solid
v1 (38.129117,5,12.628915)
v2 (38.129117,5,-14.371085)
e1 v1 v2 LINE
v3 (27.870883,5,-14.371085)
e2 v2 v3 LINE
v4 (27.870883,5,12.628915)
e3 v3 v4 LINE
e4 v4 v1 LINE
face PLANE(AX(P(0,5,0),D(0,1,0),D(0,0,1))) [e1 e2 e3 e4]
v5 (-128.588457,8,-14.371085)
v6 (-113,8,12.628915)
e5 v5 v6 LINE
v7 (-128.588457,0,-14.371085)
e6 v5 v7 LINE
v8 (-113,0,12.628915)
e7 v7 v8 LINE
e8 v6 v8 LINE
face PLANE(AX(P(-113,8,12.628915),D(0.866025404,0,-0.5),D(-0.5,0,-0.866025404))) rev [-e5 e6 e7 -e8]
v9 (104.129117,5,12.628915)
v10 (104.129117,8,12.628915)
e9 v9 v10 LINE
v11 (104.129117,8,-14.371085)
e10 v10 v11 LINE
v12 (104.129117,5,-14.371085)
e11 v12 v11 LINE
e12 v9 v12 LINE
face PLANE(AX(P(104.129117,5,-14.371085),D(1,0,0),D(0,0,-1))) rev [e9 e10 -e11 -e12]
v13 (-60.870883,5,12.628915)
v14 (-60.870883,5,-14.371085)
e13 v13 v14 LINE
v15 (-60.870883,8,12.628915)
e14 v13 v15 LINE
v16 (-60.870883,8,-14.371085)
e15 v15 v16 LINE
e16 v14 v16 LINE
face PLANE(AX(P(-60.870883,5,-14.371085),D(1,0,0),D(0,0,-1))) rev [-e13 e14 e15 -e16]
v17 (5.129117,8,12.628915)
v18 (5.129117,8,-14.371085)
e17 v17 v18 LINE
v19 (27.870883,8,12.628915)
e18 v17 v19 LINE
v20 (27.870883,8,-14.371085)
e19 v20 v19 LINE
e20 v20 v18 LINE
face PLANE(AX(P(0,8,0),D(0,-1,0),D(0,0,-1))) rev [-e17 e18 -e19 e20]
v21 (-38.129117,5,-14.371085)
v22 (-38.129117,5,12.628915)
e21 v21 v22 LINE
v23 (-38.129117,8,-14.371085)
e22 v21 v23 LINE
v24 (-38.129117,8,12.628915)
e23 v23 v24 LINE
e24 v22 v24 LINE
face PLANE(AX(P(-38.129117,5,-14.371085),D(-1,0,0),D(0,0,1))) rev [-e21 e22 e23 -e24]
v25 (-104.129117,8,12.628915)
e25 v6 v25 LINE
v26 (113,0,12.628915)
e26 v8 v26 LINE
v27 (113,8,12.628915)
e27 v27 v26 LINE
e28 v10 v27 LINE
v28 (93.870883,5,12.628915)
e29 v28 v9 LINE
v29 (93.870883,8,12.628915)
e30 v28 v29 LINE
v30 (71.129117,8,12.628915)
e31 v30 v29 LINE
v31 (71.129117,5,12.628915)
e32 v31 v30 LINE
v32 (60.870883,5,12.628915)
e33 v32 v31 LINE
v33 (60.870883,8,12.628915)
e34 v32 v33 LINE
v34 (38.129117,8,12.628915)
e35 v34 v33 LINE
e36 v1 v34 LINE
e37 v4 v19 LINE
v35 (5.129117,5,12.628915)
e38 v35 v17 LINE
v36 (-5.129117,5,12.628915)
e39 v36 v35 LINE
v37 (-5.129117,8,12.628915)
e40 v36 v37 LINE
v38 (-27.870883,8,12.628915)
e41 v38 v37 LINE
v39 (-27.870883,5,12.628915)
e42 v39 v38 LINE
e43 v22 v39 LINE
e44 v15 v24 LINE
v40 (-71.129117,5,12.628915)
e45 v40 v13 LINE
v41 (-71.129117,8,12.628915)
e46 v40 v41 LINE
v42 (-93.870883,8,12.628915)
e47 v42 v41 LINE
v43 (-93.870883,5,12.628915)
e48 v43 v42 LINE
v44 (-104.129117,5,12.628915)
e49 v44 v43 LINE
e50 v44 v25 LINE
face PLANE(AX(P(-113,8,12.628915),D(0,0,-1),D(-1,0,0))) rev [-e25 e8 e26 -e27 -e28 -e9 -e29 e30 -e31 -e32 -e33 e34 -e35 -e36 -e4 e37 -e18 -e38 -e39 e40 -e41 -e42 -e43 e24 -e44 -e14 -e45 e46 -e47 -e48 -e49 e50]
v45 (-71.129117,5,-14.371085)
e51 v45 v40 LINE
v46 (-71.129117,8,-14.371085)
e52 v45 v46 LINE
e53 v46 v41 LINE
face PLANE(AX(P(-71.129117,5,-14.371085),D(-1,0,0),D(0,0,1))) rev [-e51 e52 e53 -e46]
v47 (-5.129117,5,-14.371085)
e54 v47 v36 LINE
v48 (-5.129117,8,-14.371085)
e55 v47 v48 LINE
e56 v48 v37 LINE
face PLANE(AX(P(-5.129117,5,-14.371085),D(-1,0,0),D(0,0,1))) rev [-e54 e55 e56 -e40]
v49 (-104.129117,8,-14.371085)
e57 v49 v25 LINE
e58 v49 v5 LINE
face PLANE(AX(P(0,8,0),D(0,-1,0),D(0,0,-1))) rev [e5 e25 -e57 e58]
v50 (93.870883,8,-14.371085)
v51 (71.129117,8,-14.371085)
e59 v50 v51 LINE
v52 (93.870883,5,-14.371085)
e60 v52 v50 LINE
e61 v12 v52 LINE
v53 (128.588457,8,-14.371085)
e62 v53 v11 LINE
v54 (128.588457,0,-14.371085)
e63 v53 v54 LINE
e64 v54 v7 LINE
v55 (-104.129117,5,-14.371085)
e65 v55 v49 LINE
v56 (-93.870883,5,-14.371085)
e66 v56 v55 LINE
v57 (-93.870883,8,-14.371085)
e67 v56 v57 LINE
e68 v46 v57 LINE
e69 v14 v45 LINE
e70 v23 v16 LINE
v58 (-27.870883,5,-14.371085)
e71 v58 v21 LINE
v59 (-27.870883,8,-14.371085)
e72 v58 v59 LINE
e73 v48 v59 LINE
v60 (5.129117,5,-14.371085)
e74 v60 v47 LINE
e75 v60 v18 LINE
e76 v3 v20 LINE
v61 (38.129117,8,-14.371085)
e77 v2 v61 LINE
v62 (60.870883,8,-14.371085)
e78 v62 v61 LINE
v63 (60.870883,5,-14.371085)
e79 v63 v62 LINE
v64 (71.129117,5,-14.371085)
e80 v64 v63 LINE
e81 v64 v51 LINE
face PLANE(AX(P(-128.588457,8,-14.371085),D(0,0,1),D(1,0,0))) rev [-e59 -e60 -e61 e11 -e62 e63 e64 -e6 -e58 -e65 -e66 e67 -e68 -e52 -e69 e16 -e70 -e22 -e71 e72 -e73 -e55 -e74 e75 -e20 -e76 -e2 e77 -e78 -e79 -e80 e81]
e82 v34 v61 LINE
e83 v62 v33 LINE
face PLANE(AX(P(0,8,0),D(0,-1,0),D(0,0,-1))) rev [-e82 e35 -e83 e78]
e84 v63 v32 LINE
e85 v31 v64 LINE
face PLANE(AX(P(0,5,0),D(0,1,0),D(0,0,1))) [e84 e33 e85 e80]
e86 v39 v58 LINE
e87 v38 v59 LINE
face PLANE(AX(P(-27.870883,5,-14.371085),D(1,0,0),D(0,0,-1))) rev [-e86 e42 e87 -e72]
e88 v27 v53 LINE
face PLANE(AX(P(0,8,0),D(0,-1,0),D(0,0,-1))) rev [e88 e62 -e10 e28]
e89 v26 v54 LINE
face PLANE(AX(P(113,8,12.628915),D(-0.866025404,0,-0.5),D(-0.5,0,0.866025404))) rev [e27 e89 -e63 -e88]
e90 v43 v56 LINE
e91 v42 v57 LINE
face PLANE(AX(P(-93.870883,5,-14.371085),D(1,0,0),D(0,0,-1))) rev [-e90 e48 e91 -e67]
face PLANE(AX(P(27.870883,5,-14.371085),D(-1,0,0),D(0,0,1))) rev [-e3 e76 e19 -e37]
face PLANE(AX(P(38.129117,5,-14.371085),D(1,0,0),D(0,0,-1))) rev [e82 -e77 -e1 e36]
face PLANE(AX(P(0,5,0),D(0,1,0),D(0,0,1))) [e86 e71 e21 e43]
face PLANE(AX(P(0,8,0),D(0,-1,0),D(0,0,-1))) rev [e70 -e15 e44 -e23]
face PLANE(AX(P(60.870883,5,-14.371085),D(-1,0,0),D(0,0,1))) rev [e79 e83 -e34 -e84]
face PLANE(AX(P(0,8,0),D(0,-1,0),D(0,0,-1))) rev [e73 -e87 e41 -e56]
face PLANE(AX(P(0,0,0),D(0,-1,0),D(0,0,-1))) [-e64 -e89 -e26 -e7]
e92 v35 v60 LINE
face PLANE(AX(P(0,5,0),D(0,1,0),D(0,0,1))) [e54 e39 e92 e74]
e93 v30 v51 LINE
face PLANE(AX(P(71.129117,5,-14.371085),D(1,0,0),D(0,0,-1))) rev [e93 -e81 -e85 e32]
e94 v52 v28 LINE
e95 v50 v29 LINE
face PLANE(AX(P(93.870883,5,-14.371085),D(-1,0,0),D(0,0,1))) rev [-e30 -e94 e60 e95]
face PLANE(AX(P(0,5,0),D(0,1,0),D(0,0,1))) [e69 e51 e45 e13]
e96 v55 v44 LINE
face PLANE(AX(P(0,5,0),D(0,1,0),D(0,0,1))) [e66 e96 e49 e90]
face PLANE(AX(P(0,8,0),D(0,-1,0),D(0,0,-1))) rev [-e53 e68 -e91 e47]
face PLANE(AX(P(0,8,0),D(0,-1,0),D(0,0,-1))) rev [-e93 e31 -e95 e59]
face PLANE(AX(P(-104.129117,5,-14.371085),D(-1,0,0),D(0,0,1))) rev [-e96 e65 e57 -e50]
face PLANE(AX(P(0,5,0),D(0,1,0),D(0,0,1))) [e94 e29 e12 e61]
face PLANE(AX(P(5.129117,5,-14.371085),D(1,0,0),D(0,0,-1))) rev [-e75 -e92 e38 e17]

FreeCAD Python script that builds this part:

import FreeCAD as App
import Part
import Sketcher
from FreeCAD import Vector
Q = App.Units.Quantity


def add_polygon(sketch, points):
    """Adds a closed chain of lines whose ends are joined by coincident constraints."""
    first, n = sketch.GeometryCount, len(points)
    for a, b in zip(points, points[1:] + points[:1]):
        sketch.addGeometry(Part.LineSegment(App.Vector(*a, 0), App.Vector(*b, 0)), False)
    for i in range(n):
        sketch.addConstraint(Sketcher.Constraint("Coincident", first + i, 2, first + (i + 1) % n, 1))

doc = App.newDocument("Part")
params = doc.addObject("Spreadsheet::Sheet", "Params")
for row, (alias, value) in enumerate([
    ("sketch1_width", "226 mm"),
    ("pad1_length", "8 mm"),
    ("sketch2_height", "27 mm"),
    ("pocket1_length", "3 mm"),
], start=1):
    params.set(f"A{row}", alias)
    params.set(f"B{row}", "=" + value)
    params.setAlias(f"B{row}", alias)

body = doc.addObject("PartDesign::Body", "Body")

# Sketch on XZ plane
sketch1 = body.newObject("Sketcher::SketchObject", "Sketch")
sketch1.AttachmentSupport = (doc.getObject("XZ_Plane"), [""])
sketch1.MapMode = "FlatFace"
add_polygon(sketch1, [(-113, 13), (113, 13), (129, -14), (-129, -14)])  # lines 0-3
sketch1.addConstraint(Sketcher.Constraint("Horizontal", 0))
sketch1.addConstraint(Sketcher.Constraint("Horizontal", 2))
sketch1.addConstraint(Sketcher.Constraint("Equal", 1, 3))
sketch1.addConstraint(Sketcher.Constraint("DistanceX", 0, 1, 0, 2, 226.0))
sketch1.addConstraint(Sketcher.Constraint("Angle", 1, Q("-60 deg")))
sketch1.addConstraint(Sketcher.Constraint("DistanceX", -1, 1, 0, 2, 113.0))
sketch1.addConstraint(Sketcher.Constraint("DistanceY", 1, 2, 0, 2, 27.0))
sketch1.addConstraint(Sketcher.Constraint("DistanceY", -1, 1, 0, 2, 12.628915))
sketch1.setExpression("Constraints[7]", "Params.sketch1_width")
pad1 = body.newObject("PartDesign::Pad", "Pad")
pad1.Profile = sketch1
pad1.setExpression("Length", "Params.pad1_length")
pad1.Reversed = True

# Sketch on XZ plane
sketch2 = body.newObject("Sketcher::SketchObject", "Sketch001")
sketch2.AttachmentSupport = (doc.getObject("XZ_Plane"), [""])
sketch2.MapMode = "FlatFace"
sketch2.AttachmentOffset = App.Placement(Vector(0, 0, -8), App.Rotation())
add_polygon(sketch2, [(-71, -14), (-71, 13), (-61, 13), (-61, -14)])  # lines 0-3
add_polygon(sketch2, [(-104, -14), (-104, 13), (-94, 13), (-94, -14)])  # lines 4-7
add_polygon(sketch2, [(-38, -14), (-38, 13), (-28, 13), (-28, -14)])  # lines 8-11
add_polygon(sketch2, [(-5, -14), (-5, 13), (5, 13), (5, -14)])  # lines 12-15
add_polygon(sketch2, [(28, -14), (28, 13), (38, 13), (38, -14)])  # lines 16-19
add_polygon(sketch2, [(61, -14), (61, 13), (71, 13), (71, -14)])  # lines 20-23
add_polygon(sketch2, [(94, -14), (94, 13), (104, 13), (104, -14)])  # lines 24-27
sketch2.addConstraint(Sketcher.Constraint("Vertical", 0))
sketch2.addConstraint(Sketcher.Constraint("Horizontal", 1))
sketch2.addConstraint(Sketcher.Constraint("Vertical", 2))
sketch2.addConstraint(Sketcher.Constraint("Horizontal", 3))
sketch2.addConstraint(Sketcher.Constraint("Vertical", 4))
sketch2.addConstraint(Sketcher.Constraint("Horizontal", 5))
sketch2.addConstraint(Sketcher.Constraint("Vertical", 6))
sketch2.addConstraint(Sketcher.Constraint("Horizontal", 7))
sketch2.addConstraint(Sketcher.Constraint("Vertical", 8))
sketch2.addConstraint(Sketcher.Constraint("Horizontal", 9))
sketch2.addConstraint(Sketcher.Constraint("Vertical", 10))
sketch2.addConstraint(Sketcher.Constraint("Horizontal", 11))
sketch2.addConstraint(Sketcher.Constraint("Vertical", 12))
sketch2.addConstraint(Sketcher.Constraint("Horizontal", 13))
sketch2.addConstraint(Sketcher.Constraint("Vertical", 14))
sketch2.addConstraint(Sketcher.Constraint("Horizontal", 15))
sketch2.addConstraint(Sketcher.Constraint("Vertical", 16))
sketch2.addConstraint(Sketcher.Constraint("Horizontal", 17))
sketch2.addConstraint(Sketcher.Constraint("Vertical", 18))
sketch2.addConstraint(Sketcher.Constraint("Horizontal", 19))
sketch2.addConstraint(Sketcher.Constraint("Vertical", 20))
sketch2.addConstraint(Sketcher.Constraint("Horizontal", 21))
sketch2.addConstraint(Sketcher.Constraint("Vertical", 22))
sketch2.addConstraint(Sketcher.Constraint("Horizontal", 23))
sketch2.addConstraint(Sketcher.Constraint("Vertical", 24))
sketch2.addConstraint(Sketcher.Constraint("Horizontal", 25))
sketch2.addConstraint(Sketcher.Constraint("Vertical", 26))
sketch2.addConstraint(Sketcher.Constraint("Horizontal", 27))
sketch2.addConstraint(Sketcher.Constraint("Symmetric", 9, 2, 16, 2, -2))
sketch2.addConstraint(Sketcher.Constraint("Symmetric", 11, 2, 18, 2, -2))
sketch2.addConstraint(Sketcher.Constraint("Symmetric", 1, 2, 20, 2, -2))
sketch2.addConstraint(Sketcher.Constraint("Symmetric", 3, 2, 22, 2, -2))
sketch2.addConstraint(Sketcher.Constraint("Symmetric", 5, 2, 24, 2, -2))
sketch2.addConstraint(Sketcher.Constraint("Symmetric", 7, 2, 26, 2, -2))
sketch2.addConstraint(Sketcher.Constraint("Horizontal", 1, 2, 4, 2))
sketch2.addConstraint(Sketcher.Constraint("Horizontal", 3, 2, 6, 2))
sketch2.addConstraint(Sketcher.Constraint("Horizontal", 5, 2, 8, 2))
sketch2.addConstraint(Sketcher.Constraint("Horizontal", 7, 2, 10, 2))
sketch2.addConstraint(Sketcher.Constraint("Horizontal", 9, 2, 12, 2))
sketch2.addConstraint(Sketcher.Constraint("Horizontal", 11, 2, 14, 2))
sketch2.addConstraint(Sketcher.Constraint("Equal", 3, 5))
sketch2.addConstraint(Sketcher.Constraint("Equal", 7, 9))
sketch2.addConstraint(Sketcher.Constraint("Equal", 11, 13))
sketch2.addConstraint(Sketcher.Constraint("DistanceY", 0, 1, 0, 2, 27.0))
sketch2.addConstraint(Sketcher.Constraint("DistanceX", 4, 2, 0, 2, 33.0))
sketch2.addConstraint(Sketcher.Constraint("DistanceX", 0, 2, 8, 2, 33.0))
sketch2.addConstraint(Sketcher.Constraint("DistanceX", 8, 2, 12, 2, 33.0))
sketch2.addConstraint(Sketcher.Constraint("DistanceX", 12, 2, 16, 2, 33.0))
sketch2.addConstraint(Sketcher.Constraint("DistanceX", 1, 1, 1, 2, 10.258235))
sketch2.addConstraint(Sketcher.Constraint("DistanceY", -1, 1, 0, 2, 12.628915))
sketch2.setExpression("Constraints[71]", "Params.sketch2_height")
pocket1 = body.newObject("PartDesign::Pocket", "Pocket")
pocket1.Profile = sketch2
pocket1.setExpression("Length", "Params.pocket1_length")
pocket1.Reversed = True

doc.recompute()
